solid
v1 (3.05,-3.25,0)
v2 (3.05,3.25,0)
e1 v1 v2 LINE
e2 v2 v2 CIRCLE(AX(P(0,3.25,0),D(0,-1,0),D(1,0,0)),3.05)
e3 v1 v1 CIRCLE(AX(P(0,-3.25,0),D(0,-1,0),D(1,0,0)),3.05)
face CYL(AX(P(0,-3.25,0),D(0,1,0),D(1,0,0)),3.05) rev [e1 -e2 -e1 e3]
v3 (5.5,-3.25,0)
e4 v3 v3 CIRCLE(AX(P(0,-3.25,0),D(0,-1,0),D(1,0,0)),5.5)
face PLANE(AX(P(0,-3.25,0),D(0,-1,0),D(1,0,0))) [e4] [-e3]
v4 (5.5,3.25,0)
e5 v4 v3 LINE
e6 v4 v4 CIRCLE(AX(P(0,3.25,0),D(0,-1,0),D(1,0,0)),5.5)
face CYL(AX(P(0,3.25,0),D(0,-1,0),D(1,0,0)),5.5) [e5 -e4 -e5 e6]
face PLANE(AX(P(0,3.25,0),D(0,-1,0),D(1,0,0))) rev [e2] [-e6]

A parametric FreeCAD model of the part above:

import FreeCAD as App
import Part
import Sketcher
from FreeCAD import Vector

doc = App.newDocument("Part")
body = doc.addObject("PartDesign::Body", "Body")

sketch1 = body.newObject("Sketcher::SketchObject", "Sketch")
sketch1.AttachmentSupport = (doc.getObject("XY_Plane"), [""])
sketch1.MapMode = "FlatFace"
sketch1.addGeometry(Part.LineSegment(Vector(5.5, 3.25, 0), Vector(3.05, 3.25, 0)), False)
sketch1.addGeometry(Part.LineSegment(Vector(3.05, 3.25, 0), Vector(3.05, -3.25, 0)), False)
sketch1.addGeometry(Part.LineSegment(Vector(3.05, -3.25, 0), Vector(5.5, -3.25, 0)), False)
sketch1.addGeometry(Part.LineSegment(Vector(5.5, -3.25, 0), Vector(5.5, 3.25, 0)), False)
sketch1.addConstraint(Sketcher.Constraint("Coincident", 0, 2, 1, 1))
sketch1.addConstraint(Sketcher.Constraint("Coincident", 1, 2, 2, 1))
sketch1.addConstraint(Sketcher.Constraint("Coincident", 2, 2, 3, 1))
sketch1.addConstraint(Sketcher.Constraint("Coincident", 3, 2, 0, 1))
sketch1.addConstraint(Sketcher.Constraint("Horizontal", 0))
sketch1.addConstraint(Sketcher.Constraint("Vertical", 1))
sketch1.addConstraint(Sketcher.Constraint("Horizontal", 2))
sketch1.addConstraint(Sketcher.Constraint("Vertical", 3))
sketch1.addConstraint(Sketcher.Constraint("DistanceY", 1, 2, 1, 1, 6.5))
sketch1.addConstraint(Sketcher.Constraint("DistanceX", 0, 2, 0, 1, 2.45))
sketch1.addConstraint(Sketcher.Constraint("DistanceX", -1, 1, 2, 2, 5.5))
sketch1.addConstraint(Sketcher.Constraint("DistanceY", -1, 1, 0, 2, 3.25))
revolution = body.newObject("PartDesign::Revolution", "Revolution")
revolution.Profile = sketch1
revolution.ReferenceAxis = (sketch1, ["V_Axis"])
revolution.Angle = 360

doc.recompute()
